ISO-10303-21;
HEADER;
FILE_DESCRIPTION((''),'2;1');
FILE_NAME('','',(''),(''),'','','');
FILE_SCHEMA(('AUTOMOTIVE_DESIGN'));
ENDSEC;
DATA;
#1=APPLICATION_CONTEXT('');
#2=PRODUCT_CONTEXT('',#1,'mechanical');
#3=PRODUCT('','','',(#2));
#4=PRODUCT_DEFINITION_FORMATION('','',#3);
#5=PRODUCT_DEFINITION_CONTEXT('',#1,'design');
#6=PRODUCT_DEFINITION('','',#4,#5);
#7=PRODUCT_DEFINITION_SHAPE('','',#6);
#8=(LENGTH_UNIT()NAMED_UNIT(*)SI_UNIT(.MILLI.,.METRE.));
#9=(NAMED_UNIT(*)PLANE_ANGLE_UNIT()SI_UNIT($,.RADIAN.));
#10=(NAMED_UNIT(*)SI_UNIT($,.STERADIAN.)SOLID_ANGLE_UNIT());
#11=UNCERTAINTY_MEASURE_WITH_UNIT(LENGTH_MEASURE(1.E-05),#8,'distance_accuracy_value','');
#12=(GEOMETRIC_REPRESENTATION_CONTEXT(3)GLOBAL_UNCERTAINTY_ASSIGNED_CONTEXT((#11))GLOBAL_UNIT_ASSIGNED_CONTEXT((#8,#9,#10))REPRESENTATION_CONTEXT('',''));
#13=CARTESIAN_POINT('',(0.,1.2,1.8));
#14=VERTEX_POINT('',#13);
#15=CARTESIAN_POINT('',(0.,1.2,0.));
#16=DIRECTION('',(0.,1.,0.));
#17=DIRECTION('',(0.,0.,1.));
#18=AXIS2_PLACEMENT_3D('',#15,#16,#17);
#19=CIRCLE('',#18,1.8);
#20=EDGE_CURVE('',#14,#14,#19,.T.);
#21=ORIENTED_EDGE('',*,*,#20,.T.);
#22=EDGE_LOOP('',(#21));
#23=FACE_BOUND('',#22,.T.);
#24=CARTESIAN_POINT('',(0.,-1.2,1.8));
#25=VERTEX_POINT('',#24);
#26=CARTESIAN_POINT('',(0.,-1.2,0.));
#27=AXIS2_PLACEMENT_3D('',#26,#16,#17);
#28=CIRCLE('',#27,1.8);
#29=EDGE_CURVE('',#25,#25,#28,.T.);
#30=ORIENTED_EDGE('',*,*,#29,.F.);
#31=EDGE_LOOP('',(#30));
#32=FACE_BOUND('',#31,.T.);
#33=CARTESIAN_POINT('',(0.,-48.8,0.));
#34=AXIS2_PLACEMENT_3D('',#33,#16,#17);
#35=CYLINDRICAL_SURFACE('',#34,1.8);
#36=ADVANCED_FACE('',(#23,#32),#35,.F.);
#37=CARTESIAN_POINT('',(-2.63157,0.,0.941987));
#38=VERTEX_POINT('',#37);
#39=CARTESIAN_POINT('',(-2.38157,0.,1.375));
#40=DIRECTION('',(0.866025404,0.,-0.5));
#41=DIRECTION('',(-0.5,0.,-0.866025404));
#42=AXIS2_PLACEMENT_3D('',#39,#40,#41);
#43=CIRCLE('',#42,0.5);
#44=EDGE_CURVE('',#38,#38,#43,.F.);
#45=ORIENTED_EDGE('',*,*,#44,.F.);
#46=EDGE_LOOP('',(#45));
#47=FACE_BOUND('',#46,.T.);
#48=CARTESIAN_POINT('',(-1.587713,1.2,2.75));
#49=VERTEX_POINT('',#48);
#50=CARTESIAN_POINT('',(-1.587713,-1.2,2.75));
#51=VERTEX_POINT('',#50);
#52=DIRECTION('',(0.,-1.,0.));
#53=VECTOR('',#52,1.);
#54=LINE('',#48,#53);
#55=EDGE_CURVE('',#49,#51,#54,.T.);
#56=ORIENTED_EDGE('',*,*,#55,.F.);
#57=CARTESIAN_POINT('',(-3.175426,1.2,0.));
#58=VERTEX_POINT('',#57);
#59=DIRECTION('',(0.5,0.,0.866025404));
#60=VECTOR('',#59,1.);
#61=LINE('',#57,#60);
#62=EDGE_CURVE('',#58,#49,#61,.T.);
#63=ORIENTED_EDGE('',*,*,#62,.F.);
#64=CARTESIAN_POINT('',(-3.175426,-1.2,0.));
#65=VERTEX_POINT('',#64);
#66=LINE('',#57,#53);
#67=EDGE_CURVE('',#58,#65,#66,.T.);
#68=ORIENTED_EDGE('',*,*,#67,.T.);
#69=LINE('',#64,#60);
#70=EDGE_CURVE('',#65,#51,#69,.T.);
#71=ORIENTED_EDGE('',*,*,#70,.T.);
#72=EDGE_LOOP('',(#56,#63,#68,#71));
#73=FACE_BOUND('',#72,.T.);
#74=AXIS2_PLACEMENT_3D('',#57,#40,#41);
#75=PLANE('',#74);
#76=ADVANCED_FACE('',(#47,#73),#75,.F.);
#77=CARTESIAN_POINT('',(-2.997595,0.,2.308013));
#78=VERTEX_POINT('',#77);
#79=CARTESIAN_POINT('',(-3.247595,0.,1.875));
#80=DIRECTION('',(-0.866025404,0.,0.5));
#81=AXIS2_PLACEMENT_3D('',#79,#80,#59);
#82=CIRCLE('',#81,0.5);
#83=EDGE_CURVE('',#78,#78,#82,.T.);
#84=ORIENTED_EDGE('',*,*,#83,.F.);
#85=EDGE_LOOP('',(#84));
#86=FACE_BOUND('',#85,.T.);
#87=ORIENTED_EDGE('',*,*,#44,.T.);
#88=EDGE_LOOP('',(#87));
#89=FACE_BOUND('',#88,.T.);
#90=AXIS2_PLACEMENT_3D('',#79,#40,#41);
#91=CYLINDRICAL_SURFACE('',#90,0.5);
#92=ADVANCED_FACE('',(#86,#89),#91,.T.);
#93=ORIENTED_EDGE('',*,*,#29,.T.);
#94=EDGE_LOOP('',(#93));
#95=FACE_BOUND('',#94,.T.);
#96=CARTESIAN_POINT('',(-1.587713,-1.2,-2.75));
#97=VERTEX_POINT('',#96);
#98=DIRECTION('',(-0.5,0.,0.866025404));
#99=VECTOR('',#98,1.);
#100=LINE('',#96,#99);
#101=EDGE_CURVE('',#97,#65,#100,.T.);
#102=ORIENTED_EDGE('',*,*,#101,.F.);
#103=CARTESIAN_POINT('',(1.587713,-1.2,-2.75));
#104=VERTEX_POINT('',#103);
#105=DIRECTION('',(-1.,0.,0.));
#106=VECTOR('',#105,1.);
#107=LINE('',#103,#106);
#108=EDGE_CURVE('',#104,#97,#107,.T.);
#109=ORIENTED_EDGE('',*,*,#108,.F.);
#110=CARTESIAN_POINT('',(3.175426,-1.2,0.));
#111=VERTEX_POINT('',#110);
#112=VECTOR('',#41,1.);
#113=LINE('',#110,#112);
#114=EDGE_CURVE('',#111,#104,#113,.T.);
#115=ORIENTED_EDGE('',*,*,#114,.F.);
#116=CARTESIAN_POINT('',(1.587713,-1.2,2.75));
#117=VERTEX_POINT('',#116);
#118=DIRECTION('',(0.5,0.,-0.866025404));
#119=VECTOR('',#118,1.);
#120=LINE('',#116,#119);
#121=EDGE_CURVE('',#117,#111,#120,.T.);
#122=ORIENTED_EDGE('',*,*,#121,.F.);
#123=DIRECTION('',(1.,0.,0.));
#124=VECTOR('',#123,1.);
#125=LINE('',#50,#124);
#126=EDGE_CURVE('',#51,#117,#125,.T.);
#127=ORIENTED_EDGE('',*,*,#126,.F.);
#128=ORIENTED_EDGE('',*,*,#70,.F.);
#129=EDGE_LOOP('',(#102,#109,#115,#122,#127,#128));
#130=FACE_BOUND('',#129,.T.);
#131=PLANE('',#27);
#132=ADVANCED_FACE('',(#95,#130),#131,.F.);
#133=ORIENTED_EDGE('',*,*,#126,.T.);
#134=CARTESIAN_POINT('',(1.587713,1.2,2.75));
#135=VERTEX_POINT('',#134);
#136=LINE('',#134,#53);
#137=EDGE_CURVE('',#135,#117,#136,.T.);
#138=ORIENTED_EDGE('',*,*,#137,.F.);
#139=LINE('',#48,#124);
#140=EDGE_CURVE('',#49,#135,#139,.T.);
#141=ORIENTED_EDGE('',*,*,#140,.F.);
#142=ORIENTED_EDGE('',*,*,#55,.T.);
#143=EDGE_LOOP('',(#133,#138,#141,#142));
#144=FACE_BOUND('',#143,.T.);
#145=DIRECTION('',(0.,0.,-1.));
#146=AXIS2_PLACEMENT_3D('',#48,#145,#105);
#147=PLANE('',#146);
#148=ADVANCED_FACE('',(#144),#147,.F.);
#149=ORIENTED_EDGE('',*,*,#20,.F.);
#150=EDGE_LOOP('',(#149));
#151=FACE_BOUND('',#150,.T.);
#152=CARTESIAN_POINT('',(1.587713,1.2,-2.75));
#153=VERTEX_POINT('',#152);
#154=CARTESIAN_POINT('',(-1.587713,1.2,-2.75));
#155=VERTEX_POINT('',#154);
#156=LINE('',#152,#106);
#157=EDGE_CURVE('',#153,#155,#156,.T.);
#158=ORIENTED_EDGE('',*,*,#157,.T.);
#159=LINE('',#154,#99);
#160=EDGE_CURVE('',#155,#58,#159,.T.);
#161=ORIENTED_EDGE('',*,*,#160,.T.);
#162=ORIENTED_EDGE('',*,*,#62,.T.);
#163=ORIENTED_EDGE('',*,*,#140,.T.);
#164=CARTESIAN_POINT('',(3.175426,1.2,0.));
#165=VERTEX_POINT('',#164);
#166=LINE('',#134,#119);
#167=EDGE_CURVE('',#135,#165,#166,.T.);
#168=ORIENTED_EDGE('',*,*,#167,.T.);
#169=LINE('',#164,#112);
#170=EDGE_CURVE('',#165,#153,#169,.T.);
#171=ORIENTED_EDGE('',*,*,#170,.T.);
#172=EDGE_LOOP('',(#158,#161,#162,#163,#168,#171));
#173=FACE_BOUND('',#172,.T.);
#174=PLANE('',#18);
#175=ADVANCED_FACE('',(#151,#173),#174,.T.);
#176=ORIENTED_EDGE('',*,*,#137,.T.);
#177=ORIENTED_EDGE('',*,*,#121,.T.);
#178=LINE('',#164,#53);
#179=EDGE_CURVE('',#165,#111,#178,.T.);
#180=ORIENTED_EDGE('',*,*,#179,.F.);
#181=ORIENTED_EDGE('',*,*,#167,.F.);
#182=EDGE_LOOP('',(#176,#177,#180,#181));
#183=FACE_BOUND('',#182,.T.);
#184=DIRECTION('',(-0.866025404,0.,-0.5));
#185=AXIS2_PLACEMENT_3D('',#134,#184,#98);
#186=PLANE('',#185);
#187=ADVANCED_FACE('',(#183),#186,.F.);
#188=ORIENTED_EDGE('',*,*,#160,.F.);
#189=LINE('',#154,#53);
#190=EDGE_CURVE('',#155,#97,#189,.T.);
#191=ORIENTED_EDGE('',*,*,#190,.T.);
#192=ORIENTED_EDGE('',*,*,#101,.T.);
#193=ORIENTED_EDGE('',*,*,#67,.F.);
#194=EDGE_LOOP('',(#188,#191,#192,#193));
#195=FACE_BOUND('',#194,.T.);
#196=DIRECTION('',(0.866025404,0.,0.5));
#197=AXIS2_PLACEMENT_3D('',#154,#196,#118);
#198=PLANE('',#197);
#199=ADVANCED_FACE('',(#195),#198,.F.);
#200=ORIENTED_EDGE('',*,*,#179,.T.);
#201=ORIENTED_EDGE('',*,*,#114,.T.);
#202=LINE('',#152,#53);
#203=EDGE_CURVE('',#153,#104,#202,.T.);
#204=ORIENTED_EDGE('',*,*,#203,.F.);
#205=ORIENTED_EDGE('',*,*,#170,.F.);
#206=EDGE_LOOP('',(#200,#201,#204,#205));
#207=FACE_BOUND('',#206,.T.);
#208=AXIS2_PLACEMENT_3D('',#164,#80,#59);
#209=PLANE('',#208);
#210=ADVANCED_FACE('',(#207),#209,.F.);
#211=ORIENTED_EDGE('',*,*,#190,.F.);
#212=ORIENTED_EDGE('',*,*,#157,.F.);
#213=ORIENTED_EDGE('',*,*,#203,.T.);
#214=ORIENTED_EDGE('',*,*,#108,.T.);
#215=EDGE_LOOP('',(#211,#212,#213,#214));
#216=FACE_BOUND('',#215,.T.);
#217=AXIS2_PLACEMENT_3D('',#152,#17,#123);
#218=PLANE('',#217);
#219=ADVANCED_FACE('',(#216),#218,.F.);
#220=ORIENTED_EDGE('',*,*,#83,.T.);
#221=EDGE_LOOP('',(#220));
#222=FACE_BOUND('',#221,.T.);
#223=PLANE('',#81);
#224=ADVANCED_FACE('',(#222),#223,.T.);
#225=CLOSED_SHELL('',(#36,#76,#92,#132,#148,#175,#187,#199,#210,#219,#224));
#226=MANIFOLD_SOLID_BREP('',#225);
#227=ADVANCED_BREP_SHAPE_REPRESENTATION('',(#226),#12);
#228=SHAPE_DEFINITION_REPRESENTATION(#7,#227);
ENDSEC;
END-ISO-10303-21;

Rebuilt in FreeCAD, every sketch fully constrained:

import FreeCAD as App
import Part
import Sketcher
from FreeCAD import Vector
Q = App.Units.Quantity

doc = App.newDocument("Part")
params = doc.addObject("Spreadsheet::Sheet", "Params")
for row, (alias, value) in enumerate([
    ("pad1_length", "2.4 mm"),
    ("sketch2_diameter", "3.6 mm"),
    ("pocket1_length", "100 mm"),
    ("sketch3_diameter", "1 mm"),
    ("pad2_length", "1 mm"),
], start=1):
    params.set(f"A{row}", alias)
    params.set(f"B{row}", "=" + value)
    params.setAlias(f"B{row}", alias)

body = doc.addObject("PartDesign::Body", "Body")

sketch1 = body.newObject("Sketcher::SketchObject", "Sketch")
sketch1.AttachmentSupport = (doc.getObject("XZ_Plane"), [""])
sketch1.MapMode = "FlatFace"
sketch1.addGeometry([
    Part.LineSegment(Vector(3.175426, 0, 0), Vector(1.587713, -2.75, 0)),
    Part.LineSegment(Vector(1.587713, -2.75, 0), Vector(-1.587713, -2.75, 0)),
    Part.LineSegment(Vector(-1.587713, -2.75, 0), Vector(-3.175426, 0, 0)),
    Part.LineSegment(Vector(-3.175426, 0, 0), Vector(-1.587713, 2.75, 0)),
    Part.LineSegment(Vector(-1.587713, 2.75, 0), Vector(1.587713, 2.75, 0)),
    Part.LineSegment(Vector(1.587713, 2.75, 0), Vector(3.175426, 0, 0)),
], False)
sketch1.addConstraint([
    Sketcher.Constraint("Coincident", 0, 2, 1, 1),
    Sketcher.Constraint("Coincident", 1, 2, 2, 1),
    Sketcher.Constraint("Coincident", 2, 2, 3, 1),
    Sketcher.Constraint("Coincident", 3, 2, 4, 1),
    Sketcher.Constraint("Coincident", 4, 2, 5, 1),
    Sketcher.Constraint("Coincident", 5, 2, 0, 1),
    Sketcher.Constraint("Horizontal", 1),
    Sketcher.Constraint("Horizontal", 4),
    Sketcher.Constraint("Symmetric", 0, 2, 3, 2, -1, 1),
    Sketcher.Constraint("Symmetric", 2, 2, 5, 2, -1, 1),
    Sketcher.Constraint("PointOnObject", 2, 2, -1),
    Sketcher.Constraint("Parallel", 2, 5),
    Sketcher.Constraint("Vertical", 1, 2, 3, 2),
    Sketcher.Constraint("Angle", 0, Q("-120 deg")),
    Sketcher.Constraint("DistanceY", 1, 2, 3, 2, Q("5.5 mm")),
    Sketcher.Constraint("DistanceX", 1, 2, 1, 1, Q("3.175426 mm")),
])
pad1 = body.newObject("PartDesign::Pad", "Pad")
pad1.Profile = sketch1
pad1.setExpression("Length", "Params.pad1_length")
pad1.Midplane = True

sketch2 = body.newObject("Sketcher::SketchObject", "Sketch001")
sketch2.AttachmentSupport = (doc.getObject("XZ_Plane"), [""])
sketch2.MapMode = "FlatFace"
sketch2.AttachmentOffset = App.Placement(Vector(0, 0, -1.2), App.Rotation())
sketch2.addGeometry(Part.Circle(Vector(0, 0, 0), Vector(0, 0, 1), 1.8), False)
sketch2.addConstraint([
    Sketcher.Constraint("Coincident", 0, 3, -1, 1),
    Sketcher.Constraint("Diameter", 0, Q("3.6 mm")),
])
sketch2.setExpression("Constraints[1]", "Params.sketch2_diameter")
pocket1 = body.newObject("PartDesign::Pocket", "Pocket")
pocket1.Profile = sketch2
pocket1.setExpression("Length", "Params.pocket1_length")
pocket1.Midplane = True

sketch3 = body.newObject("Sketcher::SketchObject", "Sketch002")
sketch3.Placement = App.Placement(Vector(-2.38157, 0, 1.375), App.Rotation(Vector(0.5, 0, 0.866025404), Vector(0, 1, 0), Vector(-0.866025404, 0, 0.5), "ZXY"))
sketch3.addGeometry(Part.Circle(Vector(0, 0, 0), Vector(0, 0, 1), 0.5), False)
sketch3.addConstraint([
    Sketcher.Constraint("Coincident", 0, 3, -1, 1),
    Sketcher.Constraint("Diameter", 0, Q("1 mm")),
])
sketch3.setExpression("Constraints[1]", "Params.sketch3_diameter")
pad2 = body.newObject("PartDesign::Pad", "Pad001")
pad2.Profile = sketch3
pad2.setExpression("Length", "Params.pad2_length")

doc.recompute()
